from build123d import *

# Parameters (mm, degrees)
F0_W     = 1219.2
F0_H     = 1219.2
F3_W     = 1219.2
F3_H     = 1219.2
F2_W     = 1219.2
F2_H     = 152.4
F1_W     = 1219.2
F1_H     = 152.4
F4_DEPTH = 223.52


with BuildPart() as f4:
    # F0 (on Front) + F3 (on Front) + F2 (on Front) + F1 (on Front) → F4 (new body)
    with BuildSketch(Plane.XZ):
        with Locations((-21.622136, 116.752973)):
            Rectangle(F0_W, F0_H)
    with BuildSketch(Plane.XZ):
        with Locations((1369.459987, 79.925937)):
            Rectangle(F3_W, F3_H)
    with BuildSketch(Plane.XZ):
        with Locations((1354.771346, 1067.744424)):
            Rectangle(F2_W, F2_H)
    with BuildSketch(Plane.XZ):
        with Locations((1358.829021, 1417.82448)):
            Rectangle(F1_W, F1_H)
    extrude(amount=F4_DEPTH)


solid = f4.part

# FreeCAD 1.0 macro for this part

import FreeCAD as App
import Part
import Sketcher

V = App.Vector
Q = App.Units.Quantity

doc = App.newDocument("Part")
body = doc.addObject("PartDesign::Body", "Body")
body.AllowCompound = True

# Sketch on XZ plane
sketch1 = body.newObject("Sketcher::SketchObject", "Sketch")
sketch1.AttachmentSupport = (doc.getObject("XZ_Plane"), [""])
sketch1.MapMode = "FlatFace"
sketch1.addGeometry([
    Part.LineSegment(V(-631, 726, 0), V(-631, -493, 0)),  # 0
    Part.LineSegment(V(-631, -493, 0), V(588, -493, 0)),  # 1
    Part.LineSegment(V(588, -493, 0), V(588, 726, 0)),  # 2
    Part.LineSegment(V(588, 726, 0), V(-631, 726, 0)),  # 3
    Part.LineSegment(V(760, 690, 0), V(760, -530, 0)),  # 4
    Part.LineSegment(V(760, -530, 0), V(1979, -530, 0)),  # 5
    Part.LineSegment(V(1979, -530, 0), V(1979, 690, 0)),  # 6
    Part.LineSegment(V(1979, 690, 0), V(760, 690, 0)),  # 7
    Part.LineSegment(V(745, 1144, 0), V(745, 992, 0)),  # 8
    Part.LineSegment(V(745, 992, 0), V(1964, 992, 0)),  # 9
    Part.LineSegment(V(1964, 992, 0), V(1964, 1144, 0)),  # 10
    Part.LineSegment(V(1964, 1144, 0), V(745, 1144, 0)),  # 11
    Part.LineSegment(V(749, 1494, 0), V(749, 1342, 0)),  # 12
    Part.LineSegment(V(749, 1342, 0), V(1968, 1342, 0)),  # 13
    Part.LineSegment(V(1968, 1342, 0), V(1968, 1494, 0)),  # 14
    Part.LineSegment(V(1968, 1494, 0), V(749, 1494, 0)),  # 15
], False)
sketch1.addConstraint([
    Sketcher.Constraint("Coincident", 0, 2, 1, 1),
    Sketcher.Constraint("Coincident", 1, 2, 2, 1),
    Sketcher.Constraint("Coincident", 2, 2, 3, 1),
    Sketcher.Constraint("Coincident", 3, 2, 0, 1),
    Sketcher.Constraint("Coincident", 4, 2, 5, 1),
    Sketcher.Constraint("Coincident", 5, 2, 6, 1),
    Sketcher.Constraint("Coincident", 6, 2, 7, 1),
    Sketcher.Constraint("Coincident", 7, 2, 4, 1),
    Sketcher.Constraint("Coincident", 8, 2, 9, 1),
    Sketcher.Constraint("Coincident", 9, 2, 10, 1),
    Sketcher.Constraint("Coincident", 10, 2, 11, 1),
    Sketcher.Constraint("Coincident", 11, 2, 8, 1),
    Sketcher.Constraint("Coincident", 12, 2, 13, 1),
    Sketcher.Constraint("Coincident", 13, 2, 14, 1),
    Sketcher.Constraint("Coincident", 14, 2, 15, 1),
    Sketcher.Constraint("Coincident", 15, 2, 12, 1),
    Sketcher.Constraint("Vertical", 0),
    Sketcher.Constraint("Horizontal", 1),
    Sketcher.Constraint("Vertical", 2),
    Sketcher.Constraint("Horizontal", 3),
    Sketcher.Constraint("Vertical", 4),
    Sketcher.Constraint("Horizontal", 5),
    Sketcher.Constraint("Vertical", 6),
    Sketcher.Constraint("Horizontal", 7),
    Sketcher.Constraint("Vertical", 8),
    Sketcher.Constraint("Horizontal", 9),
    Sketcher.Constraint("Vertical", 10),
    Sketcher.Constraint("Horizontal", 11),
    Sketcher.Constraint("Vertical", 12),
    Sketcher.Constraint("Horizontal", 13),
    Sketcher.Constraint("Vertical", 14),
    Sketcher.Constraint("Horizontal", 15),
    Sketcher.Constraint("Equal", 3, 5),
    Sketcher.Constraint("Equal", 7, 9),
    Sketcher.Constraint("Equal", 11, 13),
    Sketcher.Constraint("Equal", 15, 0),
    Sketcher.Constraint("Equal", 2, 4),
    Sketcher.Constraint("Equal", 10, 12),
    Sketcher.Constraint("DistanceX", 1, 1, 1, 2, Q("48 in")),
    Sketcher.Constraint("DistanceY", 8, 2, 8, 1, Q("6 in")),
    Sketcher.Constraint("DistanceX", -1, 1, 12, 2, Q("749.229021 mm")),
    Sketcher.Constraint("DistanceY", -1, 1, 12, 2, Q("1341.62448 mm")),
    Sketcher.Constraint("DistanceX", 8, 2, 7, 2, Q("14.688641 mm")),
    Sketcher.Constraint("DistanceY", 2, 2, 8, 2, Q("265.191451 mm")),
    Sketcher.Constraint("DistanceX", 3, 2, 8, 2, Q("1376.393482 mm")),
    Sketcher.Constraint("DistanceX", 0, 2, -1, 1, Q("631.222136 mm")),
    Sketcher.Constraint("DistanceY", 0, 2, -1, 1, Q("492.847027 mm")),
    Sketcher.Constraint("DistanceY", 4, 2, -1, 1, Q("529.674063 mm")),
])
pad1 = body.newObject("PartDesign::Pad", "Pad")
pad1.Profile = sketch1
pad1.Length = Q("8.8 in")

doc.recompute()
